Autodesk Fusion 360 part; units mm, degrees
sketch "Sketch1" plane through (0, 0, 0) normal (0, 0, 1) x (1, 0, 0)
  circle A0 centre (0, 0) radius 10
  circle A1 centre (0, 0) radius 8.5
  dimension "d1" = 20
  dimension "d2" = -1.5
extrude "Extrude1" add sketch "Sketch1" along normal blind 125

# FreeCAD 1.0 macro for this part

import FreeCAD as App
import Part
import Sketcher

V = App.Vector

doc = App.newDocument("Part")
body = doc.addObject("PartDesign::Body", "Body")

sketch1 = body.newObject("Sketcher::SketchObject", "Sketch")
sketch1.AttachmentSupport = (doc.getObject("XY_Plane"), [""])
sketch1.MapMode = "FlatFace"
sketch1.addGeometry([
    Part.Circle(V(0, 0, 0), V(0, 0, 1), 10),
    Part.Circle(V(0, 0, 0), V(0, 0, 1), 8.5),
], False)
sketch1.addConstraint([
    Sketcher.Constraint("Coincident", 0, 3, -1, 1),
    Sketcher.Constraint("Coincident", 1, 3, -1, 1),
    Sketcher.Constraint("Diameter", 0, 20.0),
    Sketcher.Constraint("Diameter", 1, 17.0),
])
pad1 = body.newObject("PartDesign::Pad", "Pad")
pad1.Profile = sketch1
pad1.Length = 125

doc.recompute()
